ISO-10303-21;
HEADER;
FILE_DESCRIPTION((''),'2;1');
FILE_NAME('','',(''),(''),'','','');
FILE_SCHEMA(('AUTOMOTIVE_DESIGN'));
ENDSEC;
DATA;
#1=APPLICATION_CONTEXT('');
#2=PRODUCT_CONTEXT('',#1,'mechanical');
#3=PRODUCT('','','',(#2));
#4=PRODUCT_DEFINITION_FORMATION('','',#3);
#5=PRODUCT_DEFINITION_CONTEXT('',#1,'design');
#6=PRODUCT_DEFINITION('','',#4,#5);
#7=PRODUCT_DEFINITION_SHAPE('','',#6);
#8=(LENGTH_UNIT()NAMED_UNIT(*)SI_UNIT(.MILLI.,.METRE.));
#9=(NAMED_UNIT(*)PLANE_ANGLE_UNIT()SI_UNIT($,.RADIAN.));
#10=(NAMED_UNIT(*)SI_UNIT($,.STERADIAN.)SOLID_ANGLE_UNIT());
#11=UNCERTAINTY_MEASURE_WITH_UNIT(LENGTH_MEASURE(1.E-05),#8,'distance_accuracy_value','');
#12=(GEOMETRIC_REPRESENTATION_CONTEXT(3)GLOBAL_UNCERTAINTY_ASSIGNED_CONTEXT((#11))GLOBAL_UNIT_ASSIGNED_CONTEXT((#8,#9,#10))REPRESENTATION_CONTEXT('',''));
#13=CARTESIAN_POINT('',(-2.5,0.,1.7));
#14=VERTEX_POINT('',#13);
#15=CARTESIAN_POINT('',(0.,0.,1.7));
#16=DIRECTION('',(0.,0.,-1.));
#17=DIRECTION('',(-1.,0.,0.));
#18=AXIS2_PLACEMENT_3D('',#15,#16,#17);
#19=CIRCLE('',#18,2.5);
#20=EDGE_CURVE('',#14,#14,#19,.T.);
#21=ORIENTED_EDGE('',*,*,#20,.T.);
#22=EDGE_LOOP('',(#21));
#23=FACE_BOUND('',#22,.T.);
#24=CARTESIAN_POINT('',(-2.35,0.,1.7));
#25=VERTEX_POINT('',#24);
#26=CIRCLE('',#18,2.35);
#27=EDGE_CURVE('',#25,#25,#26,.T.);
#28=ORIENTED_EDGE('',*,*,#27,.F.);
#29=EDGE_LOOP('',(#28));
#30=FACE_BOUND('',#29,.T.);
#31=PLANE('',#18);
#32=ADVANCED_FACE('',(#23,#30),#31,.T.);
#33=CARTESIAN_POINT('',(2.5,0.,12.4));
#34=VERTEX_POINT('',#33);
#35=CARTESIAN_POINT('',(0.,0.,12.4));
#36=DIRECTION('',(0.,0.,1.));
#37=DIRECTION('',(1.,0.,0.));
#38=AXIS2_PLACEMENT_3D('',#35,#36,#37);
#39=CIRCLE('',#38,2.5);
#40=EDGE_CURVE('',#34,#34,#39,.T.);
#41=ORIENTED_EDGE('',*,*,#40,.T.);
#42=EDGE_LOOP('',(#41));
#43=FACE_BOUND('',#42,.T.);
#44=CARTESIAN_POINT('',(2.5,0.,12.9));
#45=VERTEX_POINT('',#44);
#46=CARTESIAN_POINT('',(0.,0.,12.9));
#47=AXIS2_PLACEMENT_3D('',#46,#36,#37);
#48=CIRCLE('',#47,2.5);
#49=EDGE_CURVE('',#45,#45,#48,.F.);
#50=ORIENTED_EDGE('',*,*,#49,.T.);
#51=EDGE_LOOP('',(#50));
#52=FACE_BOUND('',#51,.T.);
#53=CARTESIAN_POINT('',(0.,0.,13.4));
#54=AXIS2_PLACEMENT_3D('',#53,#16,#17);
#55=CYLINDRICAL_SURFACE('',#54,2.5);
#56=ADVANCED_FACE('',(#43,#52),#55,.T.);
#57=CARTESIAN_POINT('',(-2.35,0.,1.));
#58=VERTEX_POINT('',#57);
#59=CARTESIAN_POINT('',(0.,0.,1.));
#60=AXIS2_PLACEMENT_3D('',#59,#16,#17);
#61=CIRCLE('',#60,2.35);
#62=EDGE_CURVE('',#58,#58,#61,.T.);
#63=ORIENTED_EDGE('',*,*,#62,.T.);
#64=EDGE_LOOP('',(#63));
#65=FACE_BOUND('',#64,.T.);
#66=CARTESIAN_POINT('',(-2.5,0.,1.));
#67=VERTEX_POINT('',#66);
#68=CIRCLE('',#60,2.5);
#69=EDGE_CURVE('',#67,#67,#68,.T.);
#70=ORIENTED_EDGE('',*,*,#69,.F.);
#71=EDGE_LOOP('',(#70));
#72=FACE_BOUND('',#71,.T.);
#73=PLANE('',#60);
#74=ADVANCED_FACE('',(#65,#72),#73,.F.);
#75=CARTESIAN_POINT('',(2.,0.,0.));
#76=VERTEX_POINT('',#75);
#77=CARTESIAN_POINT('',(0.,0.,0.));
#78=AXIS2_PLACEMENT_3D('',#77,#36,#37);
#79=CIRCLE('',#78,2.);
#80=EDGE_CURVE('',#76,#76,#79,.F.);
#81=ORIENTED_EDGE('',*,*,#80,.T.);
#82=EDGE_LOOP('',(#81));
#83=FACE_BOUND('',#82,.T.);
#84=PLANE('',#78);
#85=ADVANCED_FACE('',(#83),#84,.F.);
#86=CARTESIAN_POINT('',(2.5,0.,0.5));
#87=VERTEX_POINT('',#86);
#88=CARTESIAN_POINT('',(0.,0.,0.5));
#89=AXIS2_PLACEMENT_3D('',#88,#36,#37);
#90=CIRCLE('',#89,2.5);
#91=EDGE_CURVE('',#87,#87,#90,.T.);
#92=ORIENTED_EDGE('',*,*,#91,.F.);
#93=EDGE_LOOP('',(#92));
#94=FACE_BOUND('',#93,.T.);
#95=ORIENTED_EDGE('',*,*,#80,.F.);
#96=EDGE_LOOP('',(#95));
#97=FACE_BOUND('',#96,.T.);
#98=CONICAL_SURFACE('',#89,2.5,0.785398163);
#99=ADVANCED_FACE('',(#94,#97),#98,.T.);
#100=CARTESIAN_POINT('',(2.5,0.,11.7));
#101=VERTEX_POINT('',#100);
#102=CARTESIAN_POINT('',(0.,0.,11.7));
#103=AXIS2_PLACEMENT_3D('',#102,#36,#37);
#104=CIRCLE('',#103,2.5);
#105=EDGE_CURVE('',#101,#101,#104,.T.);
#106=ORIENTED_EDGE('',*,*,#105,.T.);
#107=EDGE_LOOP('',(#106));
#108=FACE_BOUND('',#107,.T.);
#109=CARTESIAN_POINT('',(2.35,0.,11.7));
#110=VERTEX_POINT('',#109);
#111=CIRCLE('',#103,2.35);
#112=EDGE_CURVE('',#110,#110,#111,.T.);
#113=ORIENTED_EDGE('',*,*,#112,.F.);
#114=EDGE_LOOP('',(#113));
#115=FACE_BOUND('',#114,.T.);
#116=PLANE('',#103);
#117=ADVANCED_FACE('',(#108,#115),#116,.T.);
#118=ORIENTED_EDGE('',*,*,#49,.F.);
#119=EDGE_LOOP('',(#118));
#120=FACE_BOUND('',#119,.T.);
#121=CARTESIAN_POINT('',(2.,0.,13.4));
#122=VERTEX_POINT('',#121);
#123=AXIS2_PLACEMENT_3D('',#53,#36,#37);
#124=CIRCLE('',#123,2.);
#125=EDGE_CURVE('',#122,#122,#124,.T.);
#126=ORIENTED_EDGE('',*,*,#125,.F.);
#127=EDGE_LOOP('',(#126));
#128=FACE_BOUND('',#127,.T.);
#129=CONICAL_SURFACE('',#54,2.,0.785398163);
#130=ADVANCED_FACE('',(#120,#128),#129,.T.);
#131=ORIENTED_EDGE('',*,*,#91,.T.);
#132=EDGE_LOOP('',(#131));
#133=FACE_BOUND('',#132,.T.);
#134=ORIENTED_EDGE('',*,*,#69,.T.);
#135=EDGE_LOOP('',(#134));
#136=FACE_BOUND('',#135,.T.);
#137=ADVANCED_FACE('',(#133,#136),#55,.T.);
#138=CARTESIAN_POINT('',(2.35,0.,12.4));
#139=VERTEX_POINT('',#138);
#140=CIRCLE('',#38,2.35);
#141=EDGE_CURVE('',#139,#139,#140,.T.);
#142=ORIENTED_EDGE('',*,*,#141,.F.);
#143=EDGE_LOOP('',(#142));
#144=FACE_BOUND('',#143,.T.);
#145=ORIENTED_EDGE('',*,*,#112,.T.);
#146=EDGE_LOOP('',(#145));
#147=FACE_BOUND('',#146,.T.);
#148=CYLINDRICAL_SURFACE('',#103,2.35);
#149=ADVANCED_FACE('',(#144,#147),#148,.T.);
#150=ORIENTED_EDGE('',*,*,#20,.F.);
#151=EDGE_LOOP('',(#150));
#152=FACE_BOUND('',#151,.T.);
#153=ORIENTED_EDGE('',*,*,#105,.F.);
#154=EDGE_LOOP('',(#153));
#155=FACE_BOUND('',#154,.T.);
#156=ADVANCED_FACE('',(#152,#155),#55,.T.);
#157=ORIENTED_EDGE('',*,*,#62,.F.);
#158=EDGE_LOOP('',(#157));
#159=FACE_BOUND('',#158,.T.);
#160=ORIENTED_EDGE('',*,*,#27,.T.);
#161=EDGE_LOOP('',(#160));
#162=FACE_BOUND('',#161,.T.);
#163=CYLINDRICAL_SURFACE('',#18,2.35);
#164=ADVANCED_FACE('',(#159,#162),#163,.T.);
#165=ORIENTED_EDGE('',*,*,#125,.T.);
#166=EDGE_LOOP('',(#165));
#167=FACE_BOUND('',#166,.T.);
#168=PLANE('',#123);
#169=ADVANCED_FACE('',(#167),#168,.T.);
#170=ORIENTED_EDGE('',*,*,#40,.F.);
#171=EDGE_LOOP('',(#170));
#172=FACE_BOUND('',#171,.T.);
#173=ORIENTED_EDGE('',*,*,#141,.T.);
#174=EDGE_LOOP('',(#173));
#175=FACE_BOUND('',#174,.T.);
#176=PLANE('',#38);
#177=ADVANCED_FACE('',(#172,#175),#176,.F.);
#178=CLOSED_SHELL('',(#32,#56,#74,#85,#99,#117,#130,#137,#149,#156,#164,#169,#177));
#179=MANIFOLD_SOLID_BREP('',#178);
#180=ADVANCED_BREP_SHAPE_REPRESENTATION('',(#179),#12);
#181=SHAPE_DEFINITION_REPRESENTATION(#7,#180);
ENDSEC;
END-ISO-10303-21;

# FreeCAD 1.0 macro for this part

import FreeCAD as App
import Part
import Sketcher
from FreeCAD import Vector


def edges_at(feature, points):
    """Names of the edges that pass closest to the given points."""
    edges = feature.Shape.Edges
    near = lambda p: min(range(len(edges)), key=lambda i: edges[i].distToShape(Part.Vertex(*p))[0])
    return sorted({f"Edge{near(p) + 1}" for p in points})

doc = App.newDocument("Part")
params = doc.addObject("Spreadsheet::Sheet", "Params")
for row, (alias, value) in enumerate([
    ("sketch1_diameter", "5 mm"),
    ("pad1_length", "13.4 mm"),
    ("chamfer_size", "0.5 mm"),
    ("sketch2_diameter", "5 mm"),
    ("sketch2_diameter2", "4.7 mm"),
    ("pocket1_length", "0.7 mm"),
    ("sketch3_diameter", "5 mm"),
    ("sketch3_diameter2", "4.7 mm"),
    ("pocket2_length", "0.7 mm"),
], start=1):
    params.set(f"A{row}", alias)
    params.set(f"B{row}", "=" + value)
    params.setAlias(f"B{row}", alias)

body = doc.addObject("PartDesign::Body", "Body")

sketch1 = body.newObject("Sketcher::SketchObject", "Sketch")
sketch1.AttachmentSupport = (doc.getObject("XY_Plane"), [""])
sketch1.MapMode = "FlatFace"
sketch1.addGeometry(Part.Circle(Vector(0, 0, 0), Vector(0, 0, 1), 2.5), False)
sketch1.addConstraint([
    Sketcher.Constraint("Coincident", 0, 3, -1, 1),
    Sketcher.Constraint("Diameter", 0, 5.0),
])
sketch1.setExpression("Constraints[1]", "Params.sketch1_diameter")
pad1 = body.newObject("PartDesign::Pad", "Pad")
pad1.Profile = sketch1
pad1.setExpression("Length", "Params.pad1_length")
doc.recompute()

chamfer = body.newObject("PartDesign::Chamfer", "Chamfer")
chamfer.Base = (pad1, edges_at(pad1, [(-2.5, 0, 0), (-2.5, 0, 13.4)]))
chamfer.setExpression("Size", "Params.chamfer_size")

sketch2 = body.newObject("Sketcher::SketchObject", "Sketch001")
sketch2.AttachmentSupport = (doc.getObject("XY_Plane"), [""])
sketch2.MapMode = "FlatFace"
sketch2.AttachmentOffset = App.Placement(Vector(0, 0, 11.7), App.Rotation())
sketch2.addGeometry([
    Part.Circle(Vector(0, 0, 0), Vector(0, 0, 1), 2.5),
    Part.Circle(Vector(0, 0, 0), Vector(0, 0, 1), 2.4),
], False)
sketch2.addConstraint([
    Sketcher.Constraint("Coincident", 0, 3, -1, 1),
    Sketcher.Constraint("Coincident", 1, 3, -1, 1),
    Sketcher.Constraint("Diameter", 0, 5.0),
    Sketcher.Constraint("Diameter", 1, 4.7),
])
sketch2.setExpression("Constraints[2]", "Params.sketch2_diameter")
sketch2.setExpression("Constraints[3]", "Params.sketch2_diameter2")
pocket1 = body.newObject("PartDesign::Pocket", "Pocket")
pocket1.Profile = sketch2
pocket1.setExpression("Length", "Params.pocket1_length")
pocket1.Reversed = True

sketch3 = body.newObject("Sketcher::SketchObject", "Sketch002")
sketch3.AttachmentSupport = (doc.getObject("XY_Plane"), [""])
sketch3.MapMode = "FlatFace"
sketch3.AttachmentOffset = App.Placement(Vector(0, 0, 1), App.Rotation())
sketch3.addGeometry([
    Part.Circle(Vector(0, 0, 0), Vector(0, 0, 1), 2.5),
    Part.Circle(Vector(0, 0, 0), Vector(0, 0, 1), 2.4),
], False)
sketch3.addConstraint([
    Sketcher.Constraint("Coincident", 0, 3, -1, 1),
    Sketcher.Constraint("Coincident", 1, 3, -1, 1),
    Sketcher.Constraint("Diameter", 0, 5.0),
    Sketcher.Constraint("Diameter", 1, 4.7),
])
sketch3.setExpression("Constraints[2]", "Params.sketch3_diameter")
sketch3.setExpression("Constraints[3]", "Params.sketch3_diameter2")
pocket2 = body.newObject("PartDesign::Pocket", "Pocket001")
pocket2.Profile = sketch3
pocket2.setExpression("Length", "Params.pocket2_length")
pocket2.Reversed = True

doc.recompute()
